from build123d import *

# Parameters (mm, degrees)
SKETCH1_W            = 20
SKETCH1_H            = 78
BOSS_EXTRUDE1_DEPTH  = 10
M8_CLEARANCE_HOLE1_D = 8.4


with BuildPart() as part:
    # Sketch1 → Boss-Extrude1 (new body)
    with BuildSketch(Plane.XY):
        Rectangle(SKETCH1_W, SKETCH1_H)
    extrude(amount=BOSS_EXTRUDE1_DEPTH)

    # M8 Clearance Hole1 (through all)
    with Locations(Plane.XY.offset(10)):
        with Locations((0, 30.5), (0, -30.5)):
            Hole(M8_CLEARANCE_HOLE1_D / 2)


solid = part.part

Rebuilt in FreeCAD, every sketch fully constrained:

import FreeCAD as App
import Part
import Sketcher

V = App.Vector
Q = App.Units.Quantity


def add_polygon(sketch, points):
    """Adds a closed chain of lines whose ends are joined by coincident constraints."""
    first, n = sketch.GeometryCount, len(points)
    for a, b in zip(points, points[1:] + points[:1]):
        sketch.addGeometry(Part.LineSegment(App.Vector(*a, 0), App.Vector(*b, 0)), False)
    for i in range(n):
        sketch.addConstraint(Sketcher.Constraint("Coincident", first + i, 2, first + (i + 1) % n, 1))

doc = App.newDocument("Part")
body = doc.addObject("PartDesign::Body", "Body")

# Sketch on XY plane
sketch1 = body.newObject("Sketcher::SketchObject", "Sketch")
sketch1.AttachmentSupport = (doc.getObject("XY_Plane"), [""])
sketch1.MapMode = "FlatFace"
add_polygon(sketch1, [(-10, 39), (-10, -39), (10, -39), (10, 39)])  # lines 0-3
sketch1.addConstraint([
    Sketcher.Constraint("Vertical", 0),
    Sketcher.Constraint("Horizontal", 1),
    Sketcher.Constraint("Vertical", 2),
    Sketcher.Constraint("Horizontal", 3),
    Sketcher.Constraint("Symmetric", 0, 2, 2, 2, -1, 1),
    Sketcher.Constraint("DistanceX", 1, 1, 1, 2, Q("20 mm")),
    Sketcher.Constraint("DistanceY", 0, 2, 0, 1, Q("78 mm")),
])
pad1 = body.newObject("PartDesign::Pad", "Pad")
pad1.Profile = sketch1
pad1.Length = 10

# Sketch on XY plane
sketch2 = body.newObject("Sketcher::SketchObject", "Sketch001")
sketch2.AttachmentSupport = (doc.getObject("XY_Plane"), [""])
sketch2.MapMode = "FlatFace"
sketch2.AttachmentOffset = App.Placement(V(0, 0, 10), App.Rotation())
sketch2.addGeometry([
    Part.Circle(V(0, 30.5, 0), V(0, 0, 1), 4.2),
    Part.Circle(V(0, -30.5, 0), V(0, 0, 1), 4.2),
], False)
sketch2.addConstraint([
    Sketcher.Constraint("Equal", 0, 1),
    Sketcher.Constraint("Symmetric", 0, 3, 1, 3, -1, 1),
    Sketcher.Constraint("PointOnObject", 0, 3, -2),
    Sketcher.Constraint("Diameter", 0, Q("8.4 mm")),
    Sketcher.Constraint("DistanceY", 1, 3, 0, 3, Q("61 mm")),
])
doc.recompute()
hole = body.newObject("PartDesign::Hole", "Hole")
hole.Profile = sketch2
hole.ThreadType = "None"
hole.Diameter = 8.4
hole.DepthType = "ThroughAll"

doc.recompute()
